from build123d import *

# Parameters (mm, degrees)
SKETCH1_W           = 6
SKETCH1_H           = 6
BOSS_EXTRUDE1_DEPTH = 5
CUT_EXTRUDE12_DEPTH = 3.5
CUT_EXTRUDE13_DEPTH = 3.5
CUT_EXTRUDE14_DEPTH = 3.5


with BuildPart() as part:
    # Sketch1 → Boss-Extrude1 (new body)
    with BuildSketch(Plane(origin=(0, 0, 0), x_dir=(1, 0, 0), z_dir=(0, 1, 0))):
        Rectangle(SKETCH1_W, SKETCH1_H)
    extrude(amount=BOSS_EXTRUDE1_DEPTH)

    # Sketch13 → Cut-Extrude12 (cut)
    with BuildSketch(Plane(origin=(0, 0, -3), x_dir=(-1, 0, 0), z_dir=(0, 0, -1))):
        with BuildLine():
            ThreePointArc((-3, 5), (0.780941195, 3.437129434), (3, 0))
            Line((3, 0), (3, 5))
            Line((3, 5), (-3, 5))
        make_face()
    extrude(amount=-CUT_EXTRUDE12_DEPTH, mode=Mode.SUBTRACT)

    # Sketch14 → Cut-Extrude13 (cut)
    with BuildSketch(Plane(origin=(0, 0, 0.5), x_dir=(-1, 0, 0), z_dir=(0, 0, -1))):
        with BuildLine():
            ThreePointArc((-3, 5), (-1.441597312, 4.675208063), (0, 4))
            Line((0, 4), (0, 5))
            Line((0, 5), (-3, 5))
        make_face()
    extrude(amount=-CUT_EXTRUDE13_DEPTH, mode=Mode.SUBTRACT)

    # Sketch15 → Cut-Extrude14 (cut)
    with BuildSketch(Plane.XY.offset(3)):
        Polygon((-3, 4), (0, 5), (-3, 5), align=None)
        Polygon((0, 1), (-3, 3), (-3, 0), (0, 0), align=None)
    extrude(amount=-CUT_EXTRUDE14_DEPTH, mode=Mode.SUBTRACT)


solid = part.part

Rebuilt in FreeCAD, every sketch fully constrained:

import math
import FreeCAD as App
import Part
import Sketcher

doc = App.newDocument("Part")
body = doc.addObject("PartDesign::Body", "Body")

sketch1 = body.newObject("Sketcher::SketchObject", "Sketch")
sketch1.AttachmentSupport = (doc.getObject("XZ_Plane"), [""])
sketch1.MapMode = "FlatFace"
sketch1.addGeometry(Part.LineSegment(App.Vector(-3, -3, 0), App.Vector(-3, 3, 0)), False)
sketch1.addGeometry(Part.LineSegment(App.Vector(-3, 3, 0), App.Vector(3, 3, 0)), False)
sketch1.addGeometry(Part.LineSegment(App.Vector(3, 3, 0), App.Vector(3, -3, 0)), False)
sketch1.addGeometry(Part.LineSegment(App.Vector(3, -3, 0), App.Vector(-3, -3, 0)), False)
sketch1.addConstraint(Sketcher.Constraint("Coincident", 0, 2, 1, 1))
sketch1.addConstraint(Sketcher.Constraint("Coincident", 1, 2, 2, 1))
sketch1.addConstraint(Sketcher.Constraint("Coincident", 2, 2, 3, 1))
sketch1.addConstraint(Sketcher.Constraint("Coincident", 3, 2, 0, 1))
sketch1.addConstraint(Sketcher.Constraint("Vertical", 0))
sketch1.addConstraint(Sketcher.Constraint("Horizontal", 1))
sketch1.addConstraint(Sketcher.Constraint("Vertical", 2))
sketch1.addConstraint(Sketcher.Constraint("Horizontal", 3))
sketch1.addConstraint(Sketcher.Constraint("Symmetric", 0, 2, 2, 2, -1, 1))
sketch1.addConstraint(Sketcher.Constraint("Equal", 3, 0))
sketch1.addConstraint(Sketcher.Constraint("DistanceX", 1, 1, 1, 2, 6.0))
pad1 = body.newObject("PartDesign::Pad", "Pad")
pad1.Profile = sketch1
pad1.Length = 5
pad1.Reversed = True

sketch2 = body.newObject("Sketcher::SketchObject", "Sketch001")
sketch2.AttachmentSupport = (doc.getObject("XY_Plane"), [""])
sketch2.MapMode = "FlatFace"
sketch2.AttachmentOffset = App.Placement(App.Vector(0, 0, -3), App.Rotation())
sketch2.addGeometry(Part.ArcOfCircle(Part.Circle(App.Vector(3.611111, -1.833333, 0), App.Vector(0, 0, 1), 6.860605), math.radians(95.110418), math.radians(164.500725)), False)
sketch2.addGeometry(Part.LineSegment(App.Vector(-3, 0, 0), App.Vector(-3, 5, 0)), False)
sketch2.addGeometry(Part.LineSegment(App.Vector(-3, 5, 0), App.Vector(3, 5, 0)), False)
sketch2.addConstraint(Sketcher.Constraint("Coincident", 0, 2, 1, 1))
sketch2.addConstraint(Sketcher.Constraint("Coincident", 1, 2, 2, 1))
sketch2.addConstraint(Sketcher.Constraint("Coincident", 2, 2, 0, 1))
sketch2.addConstraint(Sketcher.Constraint("Vertical", 1))
sketch2.addConstraint(Sketcher.Constraint("Horizontal", 2))
sketch2.addConstraint(Sketcher.Constraint("PointOnObject", 0, 2, -1))
sketch2.addConstraint(Sketcher.Constraint("DistanceX", 2, 1, 2, 2, 6.0))
sketch2.addConstraint(Sketcher.Constraint("DistanceY", 1, 1, 1, 2, 5.0))
sketch2.addConstraint(Sketcher.Constraint("DistanceX", 0, 2, -1, 1, 3.0))
sketch2.addConstraint(Sketcher.Constraint("Radius", 0, 6.860605))
pocket1 = body.newObject("PartDesign::Pocket", "Pocket")
pocket1.Profile = sketch2
pocket1.Length = 3.5
pocket1.Reversed = True

sketch3 = body.newObject("Sketcher::SketchObject", "Sketch002")
sketch3.AttachmentSupport = (doc.getObject("XY_Plane"), [""])
sketch3.MapMode = "FlatFace"
sketch3.AttachmentOffset = App.Placement(App.Vector(0, 0, 0.5), App.Rotation())
sketch3.addGeometry(Part.ArcOfCircle(Part.Circle(App.Vector(3.611111, -1.833333, 0), App.Vector(0, 0, 1), 6.860605), math.radians(95.110418), math.radians(121.75948)), False)
sketch3.addGeometry(Part.LineSegment(App.Vector(0, 4, 0), App.Vector(0, 5, 0)), False)
sketch3.addGeometry(Part.LineSegment(App.Vector(0, 5, 0), App.Vector(3, 5, 0)), False)
sketch3.addConstraint(Sketcher.Constraint("Coincident", 0, 2, 1, 1))
sketch3.addConstraint(Sketcher.Constraint("Coincident", 1, 2, 2, 1))
sketch3.addConstraint(Sketcher.Constraint("Coincident", 2, 2, 0, 1))
sketch3.addConstraint(Sketcher.Constraint("Vertical", 1))
sketch3.addConstraint(Sketcher.Constraint("Horizontal", 2))
sketch3.addConstraint(Sketcher.Constraint("PointOnObject", 0, 2, -2))
sketch3.addConstraint(Sketcher.Constraint("DistanceX", 2, 1, 2, 2, 3.0))
sketch3.addConstraint(Sketcher.Constraint("DistanceY", 1, 1, 1, 2, 1.0))
sketch3.addConstraint(Sketcher.Constraint("DistanceY", -1, 1, 0, 2, 4.0))
sketch3.addConstraint(Sketcher.Constraint("Radius", 0, 6.860605))
pocket2 = body.newObject("PartDesign::Pocket", "Pocket001")
pocket2.Profile = sketch3
pocket2.Length = 3.5
pocket2.Reversed = True

sketch4 = body.newObject("Sketcher::SketchObject", "Sketch003")
sketch4.AttachmentSupport = (doc.getObject("XY_Plane"), [""])
sketch4.MapMode = "FlatFace"
sketch4.AttachmentOffset = App.Placement(App.Vector(0, 0, 3), App.Rotation())
sketch4.addGeometry(Part.LineSegment(App.Vector(-3, 4, 0), App.Vector(0, 5, 0)), False)
sketch4.addGeometry(Part.LineSegment(App.Vector(0, 5, 0), App.Vector(-3, 5, 0)), False)
sketch4.addGeometry(Part.LineSegment(App.Vector(-3, 5, 0), App.Vector(-3, 4, 0)), False)
sketch4.addGeometry(Part.LineSegment(App.Vector(0, 1, 0), App.Vector(-3, 3, 0)), False)
sketch4.addGeometry(Part.LineSegment(App.Vector(-3, 3, 0), App.Vector(-3, 0, 0)), False)
sketch4.addGeometry(Part.LineSegment(App.Vector(-3, 0, 0), App.Vector(0, 0, 0)), False)
sketch4.addGeometry(Part.LineSegment(App.Vector(0, 0, 0), App.Vector(0, 1, 0)), False)
sketch4.addConstraint(Sketcher.Constraint("Coincident", 0, 2, 1, 1))
sketch4.addConstraint(Sketcher.Constraint("Coincident", 1, 2, 2, 1))
sketch4.addConstraint(Sketcher.Constraint("Coincident", 2, 2, 0, 1))
sketch4.addConstraint(Sketcher.Constraint("Coincident", 3, 2, 4, 1))
sketch4.addConstraint(Sketcher.Constraint("Coincident", 4, 2, 5, 1))
sketch4.addConstraint(Sketcher.Constraint("Coincident", 5, 2, 6, 1))
sketch4.addConstraint(Sketcher.Constraint("Coincident", 6, 2, 3, 1))
sketch4.addConstraint(Sketcher.Constraint("Horizontal", 1))
sketch4.addConstraint(Sketcher.Constraint("Vertical", 2))
sketch4.addConstraint(Sketcher.Constraint("Vertical", 4))
sketch4.addConstraint(Sketcher.Constraint("Horizontal", 5))
sketch4.addConstraint(Sketcher.Constraint("Vertical", 6))
sketch4.addConstraint(Sketcher.Constraint("Coincident", 5, 2, -1, 1))
sketch4.addConstraint(Sketcher.Constraint("PointOnObject", 0, 2, -2))
sketch4.addConstraint(Sketcher.Constraint("Vertical", 2, 2, 3, 2))
sketch4.addConstraint(Sketcher.Constraint("Equal", 5, 4))
sketch4.addConstraint(Sketcher.Constraint("Equal", 2, 6))
sketch4.addConstraint(Sketcher.Constraint("DistanceX", 1, 2, 1, 1, 3.0))
sketch4.addConstraint(Sketcher.Constraint("DistanceY", 2, 2, 2, 1, 1.0))
sketch4.addConstraint(Sketcher.Constraint("DistanceY", -1, 1, 0, 2, 5.0))
pocket3 = body.newObject("PartDesign::Pocket", "Pocket002")
pocket3.Profile = sketch4
pocket3.Length = 3.5

doc.recompute()
